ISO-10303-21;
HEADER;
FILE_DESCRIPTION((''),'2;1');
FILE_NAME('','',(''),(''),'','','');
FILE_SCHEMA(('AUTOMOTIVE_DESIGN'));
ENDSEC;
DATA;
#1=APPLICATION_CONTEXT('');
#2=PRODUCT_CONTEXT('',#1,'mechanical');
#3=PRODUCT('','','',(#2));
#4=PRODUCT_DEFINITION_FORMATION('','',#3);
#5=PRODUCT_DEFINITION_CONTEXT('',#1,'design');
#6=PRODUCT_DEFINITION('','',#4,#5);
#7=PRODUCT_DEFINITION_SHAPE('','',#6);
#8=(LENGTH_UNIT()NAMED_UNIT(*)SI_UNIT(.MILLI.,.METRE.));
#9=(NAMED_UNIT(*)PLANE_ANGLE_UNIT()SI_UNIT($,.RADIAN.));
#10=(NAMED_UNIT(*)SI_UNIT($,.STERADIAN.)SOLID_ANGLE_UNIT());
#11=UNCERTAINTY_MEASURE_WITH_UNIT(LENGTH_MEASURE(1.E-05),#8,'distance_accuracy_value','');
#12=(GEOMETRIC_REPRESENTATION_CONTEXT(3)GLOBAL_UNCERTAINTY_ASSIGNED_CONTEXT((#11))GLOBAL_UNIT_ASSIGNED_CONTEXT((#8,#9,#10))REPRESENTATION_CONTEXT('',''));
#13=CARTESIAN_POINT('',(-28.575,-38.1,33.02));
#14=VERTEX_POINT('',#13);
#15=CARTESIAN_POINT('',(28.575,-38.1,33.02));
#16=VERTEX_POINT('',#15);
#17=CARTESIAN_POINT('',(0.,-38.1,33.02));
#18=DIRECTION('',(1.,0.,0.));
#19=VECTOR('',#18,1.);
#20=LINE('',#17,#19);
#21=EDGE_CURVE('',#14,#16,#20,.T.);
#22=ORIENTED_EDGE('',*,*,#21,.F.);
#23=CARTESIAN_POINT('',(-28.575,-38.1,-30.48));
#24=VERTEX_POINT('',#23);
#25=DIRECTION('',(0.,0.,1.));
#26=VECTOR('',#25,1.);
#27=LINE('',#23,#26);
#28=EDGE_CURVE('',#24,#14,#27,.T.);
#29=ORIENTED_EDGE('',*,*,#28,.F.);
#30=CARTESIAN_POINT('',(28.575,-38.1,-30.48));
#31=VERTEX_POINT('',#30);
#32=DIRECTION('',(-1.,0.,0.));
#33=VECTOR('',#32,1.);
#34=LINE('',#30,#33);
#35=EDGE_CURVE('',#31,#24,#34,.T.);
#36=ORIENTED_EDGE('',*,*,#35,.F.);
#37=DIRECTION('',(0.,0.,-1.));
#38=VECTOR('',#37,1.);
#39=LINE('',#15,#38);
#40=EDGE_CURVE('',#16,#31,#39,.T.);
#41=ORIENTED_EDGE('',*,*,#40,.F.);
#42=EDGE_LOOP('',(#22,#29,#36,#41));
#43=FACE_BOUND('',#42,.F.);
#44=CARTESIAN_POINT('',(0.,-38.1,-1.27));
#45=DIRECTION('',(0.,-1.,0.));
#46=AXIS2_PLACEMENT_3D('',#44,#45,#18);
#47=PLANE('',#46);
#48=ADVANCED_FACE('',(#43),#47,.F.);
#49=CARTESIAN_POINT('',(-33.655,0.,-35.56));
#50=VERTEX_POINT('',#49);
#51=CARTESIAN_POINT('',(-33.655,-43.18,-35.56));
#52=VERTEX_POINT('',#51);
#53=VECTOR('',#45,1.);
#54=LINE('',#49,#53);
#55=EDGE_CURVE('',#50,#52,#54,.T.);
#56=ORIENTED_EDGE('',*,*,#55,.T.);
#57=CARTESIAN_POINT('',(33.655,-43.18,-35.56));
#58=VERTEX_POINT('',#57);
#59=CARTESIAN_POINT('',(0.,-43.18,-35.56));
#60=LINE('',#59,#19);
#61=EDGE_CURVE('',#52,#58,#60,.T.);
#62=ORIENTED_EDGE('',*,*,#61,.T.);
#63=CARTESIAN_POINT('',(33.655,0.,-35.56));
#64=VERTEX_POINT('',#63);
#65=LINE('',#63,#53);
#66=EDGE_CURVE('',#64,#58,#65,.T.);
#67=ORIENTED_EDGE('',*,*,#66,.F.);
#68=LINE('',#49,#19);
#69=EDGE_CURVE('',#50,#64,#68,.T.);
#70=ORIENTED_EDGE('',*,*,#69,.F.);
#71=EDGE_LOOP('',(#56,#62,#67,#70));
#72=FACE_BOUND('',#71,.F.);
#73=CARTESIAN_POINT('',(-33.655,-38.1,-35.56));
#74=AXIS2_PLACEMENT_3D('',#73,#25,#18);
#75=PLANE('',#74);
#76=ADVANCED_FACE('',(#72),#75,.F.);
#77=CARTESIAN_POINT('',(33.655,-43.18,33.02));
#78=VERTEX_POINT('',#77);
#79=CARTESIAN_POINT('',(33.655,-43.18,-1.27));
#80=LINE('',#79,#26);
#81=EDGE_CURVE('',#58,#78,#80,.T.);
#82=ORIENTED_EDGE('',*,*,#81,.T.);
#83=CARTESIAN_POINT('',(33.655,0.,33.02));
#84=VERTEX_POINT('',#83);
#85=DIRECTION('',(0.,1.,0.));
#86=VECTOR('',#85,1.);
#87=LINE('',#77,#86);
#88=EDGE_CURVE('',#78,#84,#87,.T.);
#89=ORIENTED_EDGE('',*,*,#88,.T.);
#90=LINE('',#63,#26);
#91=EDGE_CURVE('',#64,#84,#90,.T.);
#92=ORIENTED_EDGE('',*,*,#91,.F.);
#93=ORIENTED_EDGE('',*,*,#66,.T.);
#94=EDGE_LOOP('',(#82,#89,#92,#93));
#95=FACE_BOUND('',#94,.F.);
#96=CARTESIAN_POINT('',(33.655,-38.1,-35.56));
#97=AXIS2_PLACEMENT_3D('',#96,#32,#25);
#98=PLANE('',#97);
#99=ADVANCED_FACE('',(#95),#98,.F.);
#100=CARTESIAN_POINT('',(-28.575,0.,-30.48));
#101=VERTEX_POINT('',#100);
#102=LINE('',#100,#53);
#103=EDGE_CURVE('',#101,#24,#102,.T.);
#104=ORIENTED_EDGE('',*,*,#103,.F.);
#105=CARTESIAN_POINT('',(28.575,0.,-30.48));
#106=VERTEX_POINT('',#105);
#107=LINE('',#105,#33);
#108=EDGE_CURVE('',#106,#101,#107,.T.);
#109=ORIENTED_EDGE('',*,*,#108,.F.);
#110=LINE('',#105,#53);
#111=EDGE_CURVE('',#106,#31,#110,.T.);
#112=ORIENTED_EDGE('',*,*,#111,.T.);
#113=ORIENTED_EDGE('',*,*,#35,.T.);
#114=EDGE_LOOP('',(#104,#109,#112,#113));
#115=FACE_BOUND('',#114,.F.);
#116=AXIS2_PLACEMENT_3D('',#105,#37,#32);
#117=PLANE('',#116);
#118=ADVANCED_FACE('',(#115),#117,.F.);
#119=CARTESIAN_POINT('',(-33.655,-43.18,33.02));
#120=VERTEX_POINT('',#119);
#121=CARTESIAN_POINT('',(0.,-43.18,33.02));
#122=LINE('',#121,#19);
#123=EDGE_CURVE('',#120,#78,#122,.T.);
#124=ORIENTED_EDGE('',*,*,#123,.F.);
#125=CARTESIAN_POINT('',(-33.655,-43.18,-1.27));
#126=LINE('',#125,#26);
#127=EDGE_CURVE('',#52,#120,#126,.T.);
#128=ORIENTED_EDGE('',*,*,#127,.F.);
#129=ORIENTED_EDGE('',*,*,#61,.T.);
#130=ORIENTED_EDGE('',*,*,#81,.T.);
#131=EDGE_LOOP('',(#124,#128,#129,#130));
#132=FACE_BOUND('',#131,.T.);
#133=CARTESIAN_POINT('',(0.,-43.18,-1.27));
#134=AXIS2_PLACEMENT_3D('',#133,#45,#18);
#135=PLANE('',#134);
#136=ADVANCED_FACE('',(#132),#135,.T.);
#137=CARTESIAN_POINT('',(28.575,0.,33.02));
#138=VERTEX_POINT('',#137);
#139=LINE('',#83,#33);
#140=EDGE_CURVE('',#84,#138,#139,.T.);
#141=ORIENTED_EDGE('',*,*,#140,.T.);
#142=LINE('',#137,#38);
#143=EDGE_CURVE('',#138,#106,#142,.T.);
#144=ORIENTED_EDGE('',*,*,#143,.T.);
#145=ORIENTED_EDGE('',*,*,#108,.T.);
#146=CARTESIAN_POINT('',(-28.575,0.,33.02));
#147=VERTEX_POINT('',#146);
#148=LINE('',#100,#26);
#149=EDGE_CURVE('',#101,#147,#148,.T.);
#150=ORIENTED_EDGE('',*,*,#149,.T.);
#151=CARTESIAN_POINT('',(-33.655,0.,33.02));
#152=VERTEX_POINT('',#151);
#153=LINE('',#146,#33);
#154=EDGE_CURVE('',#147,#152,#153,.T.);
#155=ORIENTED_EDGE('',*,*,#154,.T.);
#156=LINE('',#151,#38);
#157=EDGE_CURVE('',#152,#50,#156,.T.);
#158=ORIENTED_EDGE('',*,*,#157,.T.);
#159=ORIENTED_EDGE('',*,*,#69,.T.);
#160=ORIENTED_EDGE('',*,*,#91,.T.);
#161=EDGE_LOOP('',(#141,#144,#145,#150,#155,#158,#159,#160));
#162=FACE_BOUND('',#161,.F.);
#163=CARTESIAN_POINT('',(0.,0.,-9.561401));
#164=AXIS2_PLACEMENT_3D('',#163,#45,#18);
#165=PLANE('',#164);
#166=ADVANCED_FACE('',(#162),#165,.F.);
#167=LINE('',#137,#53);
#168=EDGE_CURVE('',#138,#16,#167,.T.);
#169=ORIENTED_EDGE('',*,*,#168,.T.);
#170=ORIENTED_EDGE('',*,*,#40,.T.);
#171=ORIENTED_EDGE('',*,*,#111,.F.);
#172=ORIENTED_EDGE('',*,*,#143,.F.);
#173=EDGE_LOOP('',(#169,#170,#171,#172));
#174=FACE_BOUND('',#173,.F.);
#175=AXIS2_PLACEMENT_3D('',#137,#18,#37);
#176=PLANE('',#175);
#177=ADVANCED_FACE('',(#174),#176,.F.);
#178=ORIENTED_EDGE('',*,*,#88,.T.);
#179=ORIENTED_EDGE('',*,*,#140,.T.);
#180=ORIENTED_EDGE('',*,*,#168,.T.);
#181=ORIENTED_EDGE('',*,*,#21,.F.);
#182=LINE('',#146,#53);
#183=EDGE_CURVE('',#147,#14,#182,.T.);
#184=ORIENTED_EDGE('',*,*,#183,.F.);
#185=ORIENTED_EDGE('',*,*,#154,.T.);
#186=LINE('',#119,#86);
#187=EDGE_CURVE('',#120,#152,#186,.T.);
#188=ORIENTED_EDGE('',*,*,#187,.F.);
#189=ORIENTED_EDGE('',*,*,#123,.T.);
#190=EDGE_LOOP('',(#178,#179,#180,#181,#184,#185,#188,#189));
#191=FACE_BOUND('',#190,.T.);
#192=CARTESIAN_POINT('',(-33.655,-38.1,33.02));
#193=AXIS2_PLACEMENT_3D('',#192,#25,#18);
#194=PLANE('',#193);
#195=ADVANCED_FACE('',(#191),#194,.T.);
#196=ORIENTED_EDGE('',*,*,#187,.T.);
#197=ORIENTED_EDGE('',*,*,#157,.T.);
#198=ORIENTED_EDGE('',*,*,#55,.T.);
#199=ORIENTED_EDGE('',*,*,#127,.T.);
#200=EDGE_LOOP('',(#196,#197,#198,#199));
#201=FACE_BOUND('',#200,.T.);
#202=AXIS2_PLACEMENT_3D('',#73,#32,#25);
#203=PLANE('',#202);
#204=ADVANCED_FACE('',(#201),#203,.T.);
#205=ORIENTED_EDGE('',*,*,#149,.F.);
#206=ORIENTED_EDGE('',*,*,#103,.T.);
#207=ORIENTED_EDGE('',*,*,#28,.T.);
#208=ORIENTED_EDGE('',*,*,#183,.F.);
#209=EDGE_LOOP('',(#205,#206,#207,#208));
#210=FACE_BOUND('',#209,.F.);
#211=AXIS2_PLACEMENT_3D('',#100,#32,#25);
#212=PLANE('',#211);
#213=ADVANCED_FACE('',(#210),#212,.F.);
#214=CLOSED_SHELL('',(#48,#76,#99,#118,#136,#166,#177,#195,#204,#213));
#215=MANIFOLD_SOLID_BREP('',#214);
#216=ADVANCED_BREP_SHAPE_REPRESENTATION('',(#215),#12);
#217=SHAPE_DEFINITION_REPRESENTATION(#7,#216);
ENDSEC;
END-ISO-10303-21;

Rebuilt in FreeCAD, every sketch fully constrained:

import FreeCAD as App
import Part
import Sketcher
from FreeCAD import Vector
Q = App.Units.Quantity


def add_polygon(sketch, points):
    """Adds a closed chain of lines whose ends are joined by coincident constraints."""
    first, n = sketch.GeometryCount, len(points)
    for a, b in zip(points, points[1:] + points[:1]):
        sketch.addGeometry(Part.LineSegment(App.Vector(*a, 0), App.Vector(*b, 0)), False)
    for i in range(n):
        sketch.addConstraint(Sketcher.Constraint("Coincident", first + i, 2, first + (i + 1) % n, 1))

doc = App.newDocument("Part")
body = doc.addObject("PartDesign::Body", "Body")

sketch1 = body.newObject("Sketcher::SketchObject", "Sketch")
sketch1.AttachmentSupport = (doc.getObject("XZ_Plane"), [""])
sketch1.MapMode = "FlatFace"
add_polygon(sketch1, [(-29, -30), (-29, 33), (-34, 33), (-34, -36), (34, -36), (34, 33), (29, 33), (29, -30)])
sketch1.addConstraint([
    Sketcher.Constraint("Vertical", 0),
    Sketcher.Constraint("Horizontal", 1),
    Sketcher.Constraint("Vertical", 2),
    Sketcher.Constraint("Horizontal", 3),
    Sketcher.Constraint("Vertical", 4),
    Sketcher.Constraint("Horizontal", 5),
    Sketcher.Constraint("Vertical", 6),
    Sketcher.Constraint("Horizontal", 7),
    Sketcher.Constraint("Symmetric", 1, 2, 4, 2, -2),
    Sketcher.Constraint("Equal", 1, 5),
    Sketcher.Constraint("DistanceX", 1, 2, 1, 1, Q("0.2 in")),
    Sketcher.Constraint("DistanceY", 0, 1, 0, 2, Q("2.5 in")),
    Sketcher.Constraint("DistanceY", 2, 2, 2, 1, Q("2.7 in")),
    Sketcher.Constraint("DistanceX", 3, 1, 3, 2, Q("2.65 in")),
    Sketcher.Constraint("DistanceY", -1, 1, 0, 2, Q("1.3 in")),
])
pad1 = body.newObject("PartDesign::Pad", "Pad")
pad1.Profile = sketch1
pad1.Length = Q("1.5 in")

sketch2 = body.newObject("Sketcher::SketchObject", "Sketch001")
sketch2.AttachmentSupport = (doc.getObject("XZ_Plane"), [""])
sketch2.MapMode = "FlatFace"
sketch2.AttachmentOffset = App.Placement(Vector(0, 0, 1.5 * 25.4), App.Rotation())
add_polygon(sketch2, [(-34, 33), (-34, -36), (34, -36), (34, 33)])
sketch2.addConstraint([
    Sketcher.Constraint("Vertical", 0),
    Sketcher.Constraint("Horizontal", 1),
    Sketcher.Constraint("Vertical", 2),
    Sketcher.Constraint("Horizontal", 3),
    Sketcher.Constraint("DistanceY", 0, 2, 0, 1, Q("2.7 in")),
    Sketcher.Constraint("DistanceX", 1, 1, 1, 2, Q("2.65 in")),
    Sketcher.Constraint("DistanceY", 0, 2, -1, 1, Q("1.4 in")),
    Sketcher.Constraint("DistanceX", 0, 2, -1, 1, Q("1.325 in")),
])
pad2 = body.newObject("PartDesign::Pad", "Pad001")
pad2.Profile = sketch2
pad2.Length = Q("0.2 in")

doc.recompute()
